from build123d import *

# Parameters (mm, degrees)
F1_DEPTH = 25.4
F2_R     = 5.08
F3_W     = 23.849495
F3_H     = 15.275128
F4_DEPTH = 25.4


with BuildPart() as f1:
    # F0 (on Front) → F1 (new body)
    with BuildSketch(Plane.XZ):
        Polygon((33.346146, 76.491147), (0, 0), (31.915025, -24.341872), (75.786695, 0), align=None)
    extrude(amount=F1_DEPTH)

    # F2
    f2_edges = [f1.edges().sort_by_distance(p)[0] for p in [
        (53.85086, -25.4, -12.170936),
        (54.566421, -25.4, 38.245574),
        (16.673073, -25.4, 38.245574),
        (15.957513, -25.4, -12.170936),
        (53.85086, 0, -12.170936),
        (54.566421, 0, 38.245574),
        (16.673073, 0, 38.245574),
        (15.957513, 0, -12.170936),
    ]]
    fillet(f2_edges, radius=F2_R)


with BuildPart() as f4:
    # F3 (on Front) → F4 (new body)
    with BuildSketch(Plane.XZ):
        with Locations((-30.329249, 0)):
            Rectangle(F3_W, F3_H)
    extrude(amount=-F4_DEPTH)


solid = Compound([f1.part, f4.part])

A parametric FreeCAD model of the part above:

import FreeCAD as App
import Part
import Sketcher
Q = App.Units.Quantity


def edges_at(feature, points):
    """Names of the edges that pass closest to the given points."""
    edges = feature.Shape.Edges
    near = lambda p: min(range(len(edges)), key=lambda i: edges[i].distToShape(Part.Vertex(*p))[0])
    return sorted({f"Edge{near(p) + 1}" for p in points})

doc = App.newDocument("Part")
body = doc.addObject("PartDesign::Body", "Body")

sketch1 = body.newObject("Sketcher::SketchObject", "Sketch")
sketch1.AttachmentSupport = (doc.getObject("XZ_Plane"), [""])
sketch1.MapMode = "FlatFace"
sketch1.addGeometry(Part.LineSegment(App.Vector(33, 76, 0), App.Vector(0, 0, 0)), False)
sketch1.addGeometry(Part.LineSegment(App.Vector(0, 0, 0), App.Vector(32, -24, 0)), False)
sketch1.addGeometry(Part.LineSegment(App.Vector(32, -24, 0), App.Vector(76, 0, 0)), False)
sketch1.addGeometry(Part.LineSegment(App.Vector(76, 0, 0), App.Vector(33, 76, 0)), False)
sketch1.addConstraint(Sketcher.Constraint("Coincident", 0, 2, 1, 1))
sketch1.addConstraint(Sketcher.Constraint("Coincident", 1, 2, 2, 1))
sketch1.addConstraint(Sketcher.Constraint("Coincident", 2, 2, 3, 1))
sketch1.addConstraint(Sketcher.Constraint("Coincident", 3, 2, 0, 1))
sketch1.addConstraint(Sketcher.Constraint("Coincident", 0, 2, -1, 1))
sketch1.addConstraint(Sketcher.Constraint("PointOnObject", 2, 2, -1))
sketch1.addConstraint(Sketcher.Constraint("Perpendicular", 2, 3))
sketch1.addConstraint(Sketcher.Constraint("Distance", 0, 83.44376))
sketch1.addConstraint(Sketcher.Constraint("Distance", 3, 87.476258))
sketch1.addConstraint(Sketcher.Constraint("DistanceY", 1, 2, -1, 1, 24.341872))
sketch1.addConstraint(Sketcher.Constraint("DistanceX", 1, 2, 2, 2, 43.87167))
pad1 = body.newObject("PartDesign::Pad", "Pad")
pad1.Profile = sketch1
pad1.Length = Q("1 in")
doc.recompute()

fillet = body.newObject("PartDesign::Fillet", "Fillet")
fillet.Base = (pad1, edges_at(pad1, [
    (53.851, -25.4, -12.171),
    (54.566, -25.4, 38.246),
    (16.673, -25.4, 38.246),
    (15.958, -25.4, -12.171),
    (53.851, 0, -12.171),
    (54.566, 0, 38.246),
    (16.673, 0, 38.246),
    (15.958, 0, -12.171),
]))
fillet.Radius = Q("0.2 in")
body2 = doc.addObject("PartDesign::Body", "Body001")

sketch2 = body2.newObject("Sketcher::SketchObject", "Sketch001")
sketch2.AttachmentSupport = (doc.getObject("XZ_Plane001"), [""])
sketch2.MapMode = "FlatFace"
sketch2.addGeometry(Part.LineSegment(App.Vector(-42, 8, 0), App.Vector(-42, -8, 0)), False)
sketch2.addGeometry(Part.LineSegment(App.Vector(-42, -8, 0), App.Vector(-18, -8, 0)), False)
sketch2.addGeometry(Part.LineSegment(App.Vector(-18, -8, 0), App.Vector(-18, 8, 0)), False)
sketch2.addGeometry(Part.LineSegment(App.Vector(-18, 8, 0), App.Vector(-42, 8, 0)), False)
sketch2.addConstraint(Sketcher.Constraint("Coincident", 0, 2, 1, 1))
sketch2.addConstraint(Sketcher.Constraint("Coincident", 1, 2, 2, 1))
sketch2.addConstraint(Sketcher.Constraint("Coincident", 2, 2, 3, 1))
sketch2.addConstraint(Sketcher.Constraint("Coincident", 3, 2, 0, 1))
sketch2.addConstraint(Sketcher.Constraint("Vertical", 0))
sketch2.addConstraint(Sketcher.Constraint("Horizontal", 1))
sketch2.addConstraint(Sketcher.Constraint("Vertical", 2))
sketch2.addConstraint(Sketcher.Constraint("Horizontal", 3))
sketch2.addConstraint(Sketcher.Constraint("DistanceX", 1, 2, -1, 1, 18.404501))
sketch2.addConstraint(Sketcher.Constraint("DistanceX", 1, 1, 1, 2, 23.849495))
sketch2.addConstraint(Sketcher.Constraint("DistanceY", 0, 2, 0, 1, 15.275128))
sketch2.addConstraint(Sketcher.Constraint("DistanceY", 0, 2, -1, 1, 7.637564))
pad2 = body2.newObject("PartDesign::Pad", "Pad001")
pad2.Profile = sketch2
pad2.Length = Q("1 in")
pad2.Reversed = True

doc.recompute()
